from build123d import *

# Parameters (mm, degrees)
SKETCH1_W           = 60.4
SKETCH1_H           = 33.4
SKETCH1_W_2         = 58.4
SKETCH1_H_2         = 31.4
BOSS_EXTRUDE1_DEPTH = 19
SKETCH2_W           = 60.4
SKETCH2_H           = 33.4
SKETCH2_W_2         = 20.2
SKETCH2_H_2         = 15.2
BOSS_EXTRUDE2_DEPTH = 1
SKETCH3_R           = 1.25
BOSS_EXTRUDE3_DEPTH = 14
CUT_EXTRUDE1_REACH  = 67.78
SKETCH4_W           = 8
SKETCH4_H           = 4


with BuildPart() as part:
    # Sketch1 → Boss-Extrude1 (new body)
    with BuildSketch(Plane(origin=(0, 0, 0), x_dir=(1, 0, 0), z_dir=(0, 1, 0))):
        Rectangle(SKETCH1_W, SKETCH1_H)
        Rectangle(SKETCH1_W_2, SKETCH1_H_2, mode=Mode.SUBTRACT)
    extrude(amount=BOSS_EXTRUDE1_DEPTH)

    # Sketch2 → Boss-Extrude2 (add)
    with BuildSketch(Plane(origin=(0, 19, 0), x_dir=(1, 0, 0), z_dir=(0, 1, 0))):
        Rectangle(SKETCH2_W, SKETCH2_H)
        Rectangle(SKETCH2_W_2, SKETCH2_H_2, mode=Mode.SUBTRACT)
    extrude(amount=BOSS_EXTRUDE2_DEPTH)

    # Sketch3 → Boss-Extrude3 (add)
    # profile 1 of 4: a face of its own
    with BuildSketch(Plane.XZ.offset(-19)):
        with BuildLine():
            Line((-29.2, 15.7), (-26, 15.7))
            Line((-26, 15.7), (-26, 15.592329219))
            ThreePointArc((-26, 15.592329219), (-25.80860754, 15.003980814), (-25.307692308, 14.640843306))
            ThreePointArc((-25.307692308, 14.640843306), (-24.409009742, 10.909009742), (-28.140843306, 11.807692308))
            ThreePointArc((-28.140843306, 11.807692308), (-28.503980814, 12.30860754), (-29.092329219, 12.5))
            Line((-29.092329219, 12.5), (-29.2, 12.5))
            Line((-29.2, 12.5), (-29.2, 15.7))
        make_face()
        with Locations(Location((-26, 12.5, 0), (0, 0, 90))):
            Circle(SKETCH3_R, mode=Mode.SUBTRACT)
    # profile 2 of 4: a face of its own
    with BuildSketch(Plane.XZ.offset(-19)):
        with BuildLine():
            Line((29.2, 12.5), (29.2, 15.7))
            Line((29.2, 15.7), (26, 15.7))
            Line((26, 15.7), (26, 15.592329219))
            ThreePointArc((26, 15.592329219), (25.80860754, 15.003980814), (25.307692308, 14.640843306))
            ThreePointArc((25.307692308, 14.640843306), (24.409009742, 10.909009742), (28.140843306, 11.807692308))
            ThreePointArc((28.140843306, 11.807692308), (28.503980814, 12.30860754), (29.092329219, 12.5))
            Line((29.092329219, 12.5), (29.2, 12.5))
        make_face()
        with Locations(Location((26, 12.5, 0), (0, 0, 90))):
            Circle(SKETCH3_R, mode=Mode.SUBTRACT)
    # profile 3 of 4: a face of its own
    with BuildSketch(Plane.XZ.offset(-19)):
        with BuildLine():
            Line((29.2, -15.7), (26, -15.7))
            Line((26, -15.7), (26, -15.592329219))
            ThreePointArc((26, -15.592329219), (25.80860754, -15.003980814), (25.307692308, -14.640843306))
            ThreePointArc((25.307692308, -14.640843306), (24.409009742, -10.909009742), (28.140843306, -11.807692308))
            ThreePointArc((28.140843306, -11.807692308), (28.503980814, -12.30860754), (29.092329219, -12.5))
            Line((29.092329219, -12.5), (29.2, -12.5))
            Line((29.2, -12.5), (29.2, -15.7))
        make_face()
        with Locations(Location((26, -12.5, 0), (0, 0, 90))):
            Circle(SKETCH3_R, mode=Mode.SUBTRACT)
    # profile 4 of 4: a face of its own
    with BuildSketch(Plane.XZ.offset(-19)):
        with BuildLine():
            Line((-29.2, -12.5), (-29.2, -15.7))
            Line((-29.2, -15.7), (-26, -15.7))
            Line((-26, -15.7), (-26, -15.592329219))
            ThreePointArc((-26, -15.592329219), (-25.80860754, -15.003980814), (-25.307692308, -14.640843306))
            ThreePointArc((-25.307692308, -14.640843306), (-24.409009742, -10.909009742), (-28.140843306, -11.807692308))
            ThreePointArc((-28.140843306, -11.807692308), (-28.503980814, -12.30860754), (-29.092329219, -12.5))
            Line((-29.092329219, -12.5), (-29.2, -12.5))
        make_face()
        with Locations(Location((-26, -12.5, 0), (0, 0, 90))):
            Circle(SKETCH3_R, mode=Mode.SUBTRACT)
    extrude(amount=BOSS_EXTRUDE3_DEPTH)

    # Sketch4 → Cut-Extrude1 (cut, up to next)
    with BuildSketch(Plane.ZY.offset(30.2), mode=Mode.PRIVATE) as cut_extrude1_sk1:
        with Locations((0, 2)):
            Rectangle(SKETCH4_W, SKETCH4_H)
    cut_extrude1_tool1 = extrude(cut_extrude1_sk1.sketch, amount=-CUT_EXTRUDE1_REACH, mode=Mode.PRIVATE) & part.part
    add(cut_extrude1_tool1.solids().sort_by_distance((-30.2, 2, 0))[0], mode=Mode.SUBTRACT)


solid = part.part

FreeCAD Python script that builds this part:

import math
import FreeCAD as App
import Part
import Sketcher

V = App.Vector

doc = App.newDocument("Part")
body = doc.addObject("PartDesign::Body", "Body")

sketch1 = body.newObject("Sketcher::SketchObject", "Sketch")
sketch1.AttachmentSupport = (doc.getObject("XZ_Plane"), [""])
sketch1.MapMode = "FlatFace"
sketch1.addGeometry([
    Part.LineSegment(V(-30, -17, 0), V(-30, 17, 0)),
    Part.LineSegment(V(-30, 17, 0), V(30, 17, 0)),
    Part.LineSegment(V(30, 17, 0), V(30, -17, 0)),
    Part.LineSegment(V(30, -17, 0), V(-30, -17, 0)),
    Part.LineSegment(V(29, 16, 0), V(-29, 16, 0)),
    Part.LineSegment(V(-29, 16, 0), V(-29, -16, 0)),
    Part.LineSegment(V(-29, -16, 0), V(29, -16, 0)),
    Part.LineSegment(V(29, -16, 0), V(29, 16, 0)),
], False)
sketch1.addConstraint([
    Sketcher.Constraint("Coincident", 0, 2, 1, 1),
    Sketcher.Constraint("Coincident", 1, 2, 2, 1),
    Sketcher.Constraint("Coincident", 2, 2, 3, 1),
    Sketcher.Constraint("Coincident", 3, 2, 0, 1),
    Sketcher.Constraint("Coincident", 4, 2, 5, 1),
    Sketcher.Constraint("Coincident", 5, 2, 6, 1),
    Sketcher.Constraint("Coincident", 6, 2, 7, 1),
    Sketcher.Constraint("Coincident", 7, 2, 4, 1),
    Sketcher.Constraint("Vertical", 0),
    Sketcher.Constraint("Horizontal", 1),
    Sketcher.Constraint("Vertical", 2),
    Sketcher.Constraint("Horizontal", 3),
    Sketcher.Constraint("Horizontal", 4),
    Sketcher.Constraint("Vertical", 5),
    Sketcher.Constraint("Horizontal", 6),
    Sketcher.Constraint("Vertical", 7),
    Sketcher.Constraint("Symmetric", 0, 2, 2, 2, -1, 1),
    Sketcher.Constraint("Symmetric", 4, 2, 6, 2, -1, 1),
    Sketcher.Constraint("DistanceX", 1, 1, 1, 2, 60.4),
    Sketcher.Constraint("DistanceX", 4, 2, 4, 1, 58.4),
    Sketcher.Constraint("DistanceY", 0, 1, 0, 2, 33.4),
    Sketcher.Constraint("DistanceY", 5, 2, 5, 1, 31.4),
])
pad1 = body.newObject("PartDesign::Pad", "Pad")
pad1.Profile = sketch1
pad1.Length = 19
pad1.Reversed = True

sketch2 = body.newObject("Sketcher::SketchObject", "Sketch001")
sketch2.AttachmentSupport = (doc.getObject("XZ_Plane"), [""])
sketch2.MapMode = "FlatFace"
sketch2.AttachmentOffset = App.Placement(V(0, 0, -19), App.Rotation())
sketch2.addGeometry([
    Part.LineSegment(V(-30, -17, 0), V(-30, 17, 0)),
    Part.LineSegment(V(-30, 17, 0), V(30, 17, 0)),
    Part.LineSegment(V(30, 17, 0), V(30, -17, 0)),
    Part.LineSegment(V(30, -17, 0), V(-30, -17, 0)),
    Part.LineSegment(V(10, 8, 0), V(-10, 8, 0)),
    Part.LineSegment(V(-10, 8, 0), V(-10, -8, 0)),
    Part.LineSegment(V(-10, -8, 0), V(10, -8, 0)),
    Part.LineSegment(V(10, -8, 0), V(10, 8, 0)),
], False)
sketch2.addConstraint([
    Sketcher.Constraint("Coincident", 0, 2, 1, 1),
    Sketcher.Constraint("Coincident", 1, 2, 2, 1),
    Sketcher.Constraint("Coincident", 2, 2, 3, 1),
    Sketcher.Constraint("Coincident", 3, 2, 0, 1),
    Sketcher.Constraint("Coincident", 4, 2, 5, 1),
    Sketcher.Constraint("Coincident", 5, 2, 6, 1),
    Sketcher.Constraint("Coincident", 6, 2, 7, 1),
    Sketcher.Constraint("Coincident", 7, 2, 4, 1),
    Sketcher.Constraint("Vertical", 0),
    Sketcher.Constraint("Horizontal", 1),
    Sketcher.Constraint("Vertical", 2),
    Sketcher.Constraint("Horizontal", 3),
    Sketcher.Constraint("Horizontal", 4),
    Sketcher.Constraint("Vertical", 5),
    Sketcher.Constraint("Horizontal", 6),
    Sketcher.Constraint("Vertical", 7),
    Sketcher.Constraint("Symmetric", 0, 2, 2, 2, -1, 1),
    Sketcher.Constraint("Symmetric", 4, 2, 6, 2, -1, 1),
    Sketcher.Constraint("DistanceX", 1, 1, 1, 2, 60.4),
    Sketcher.Constraint("DistanceX", 4, 2, 4, 1, 20.2),
    Sketcher.Constraint("DistanceY", 0, 1, 0, 2, 33.4),
    Sketcher.Constraint("DistanceY", 5, 2, 5, 1, 15.2),
])
pad2 = body.newObject("PartDesign::Pad", "Pad001")
pad2.Profile = sketch2
pad2.Length = 1
pad2.Reversed = True

sketch3 = body.newObject("Sketcher::SketchObject", "Sketch002")
sketch3.AttachmentSupport = (doc.getObject("XZ_Plane"), [""])
sketch3.MapMode = "FlatFace"
sketch3.AttachmentOffset = App.Placement(V(0, 0, -19), App.Rotation())
sketch3.addGeometry([
    Part.LineSegment(V(-26, 15.7, 0), V(-29.2, 15.7, 0)),
    Part.LineSegment(V(-29.2, 15.7, 0), V(-29.2, 12.5, 0)),
    Part.LineSegment(V(-29.2, 12.5, 0), V(-29.09, 12.5, 0)),
    Part.ArcOfCircle(Part.Circle(V(-29.09, 11.5, 0), V(0, 0, 1), 1), math.radians(18), math.radians(90)),
    Part.ArcOfCircle(Part.Circle(V(-26, 12.5, 0), V(0, 0, 1), 2.25), math.radians(-162), math.radians(72)),
    Part.ArcOfCircle(Part.Circle(V(-25, 15.59, 0), V(0, 0, 1), 1), math.radians(180), math.radians(252)),
    Part.LineSegment(V(-26, 15.59, 0), V(-26, 15.7, 0)),
    Part.Circle(V(-26, 12.5, 0), V(0, 0, 1), 1.25),
    Part.LineSegment(V(29.2, 12.5, 0), V(29.2, 15.7, 0)),
    Part.LineSegment(V(29.2, 15.7, 0), V(26, 15.7, 0)),
    Part.LineSegment(V(26, 15.7, 0), V(26, 15.59, 0)),
    Part.ArcOfCircle(Part.Circle(V(25, 15.59, 0), V(0, 0, 1), 1), math.radians(-72), math.radians(0)),
    Part.ArcOfCircle(Part.Circle(V(26, 12.5, 0), V(0, 0, 1), 2.25), math.radians(108), math.radians(342)),
    Part.ArcOfCircle(Part.Circle(V(29.09, 11.5, 0), V(0, 0, 1), 1), math.radians(90), math.radians(162)),
    Part.LineSegment(V(29.09, 12.5, 0), V(29.2, 12.5, 0)),
    Part.Circle(V(26, 12.5, 0), V(0, 0, 1), 1.25),
    Part.LineSegment(V(26, -15.7, 0), V(29.2, -15.7, 0)),
    Part.LineSegment(V(29.2, -15.7, 0), V(29.2, -12.5, 0)),
    Part.LineSegment(V(29.2, -12.5, 0), V(29.09, -12.5, 0)),
    Part.ArcOfCircle(Part.Circle(V(29.09, -11.5, 0), V(0, 0, 1), 1), math.radians(-162), math.radians(-90)),
    Part.ArcOfCircle(Part.Circle(V(26, -12.5, 0), V(0, 0, 1), 2.25), math.radians(18), math.radians(252)),
    Part.ArcOfCircle(Part.Circle(V(25, -15.59, 0), V(0, 0, 1), 1), math.radians(0), math.radians(72)),
    Part.LineSegment(V(26, -15.59, 0), V(26, -15.7, 0)),
    Part.Circle(V(26, -12.5, 0), V(0, 0, 1), 1.25),
    Part.LineSegment(V(-29.2, -12.5, 0), V(-29.2, -15.7, 0)),
    Part.LineSegment(V(-29.2, -15.7, 0), V(-26, -15.7, 0)),
    Part.LineSegment(V(-26, -15.7, 0), V(-26, -15.59, 0)),
    Part.ArcOfCircle(Part.Circle(V(-25, -15.59, 0), V(0, 0, 1), 1), math.radians(108), math.radians(180)),
    Part.ArcOfCircle(Part.Circle(V(-26, -12.5, 0), V(0, 0, 1), 2.25), math.radians(-72), math.radians(162)),
    Part.ArcOfCircle(Part.Circle(V(-29.09, -11.5, 0), V(0, 0, 1), 1), math.radians(-90), math.radians(-18)),
    Part.LineSegment(V(-29.09, -12.5, 0), V(-29.2, -12.5, 0)),
    Part.Circle(V(-26, -12.5, 0), V(0, 0, 1), 1.25),
], False)
sketch3.addConstraint([
    Sketcher.Constraint("Coincident", 0, 2, 1, 1),
    Sketcher.Constraint("Coincident", 1, 2, 2, 1),
    Sketcher.Constraint("Tangent", 2, 2, 3, 2),
    Sketcher.Constraint("Tangent", 3, 1, 4, 1),
    Sketcher.Constraint("Tangent", 4, 2, 5, 2),
    Sketcher.Constraint("Tangent", 5, 1, 6, 1),
    Sketcher.Constraint("Coincident", 6, 2, 0, 1),
    Sketcher.Constraint("Coincident", 8, 2, 9, 1),
    Sketcher.Constraint("Coincident", 9, 2, 10, 1),
    Sketcher.Constraint("Tangent", 10, 2, 11, 2),
    Sketcher.Constraint("Tangent", 11, 1, 12, 1),
    Sketcher.Constraint("Tangent", 12, 2, 13, 2),
    Sketcher.Constraint("Tangent", 13, 1, 14, 1),
    Sketcher.Constraint("Coincident", 14, 2, 8, 1),
    Sketcher.Constraint("Coincident", 16, 2, 17, 1),
    Sketcher.Constraint("Coincident", 17, 2, 18, 1),
    Sketcher.Constraint("Tangent", 18, 2, 19, 2),
    Sketcher.Constraint("Tangent", 19, 1, 20, 1),
    Sketcher.Constraint("Tangent", 20, 2, 21, 2),
    Sketcher.Constraint("Tangent", 21, 1, 22, 1),
    Sketcher.Constraint("Coincident", 22, 2, 16, 1),
    Sketcher.Constraint("Coincident", 24, 2, 25, 1),
    Sketcher.Constraint("Coincident", 25, 2, 26, 1),
    Sketcher.Constraint("Tangent", 26, 2, 27, 2),
    Sketcher.Constraint("Tangent", 27, 1, 28, 1),
    Sketcher.Constraint("Tangent", 28, 2, 29, 2),
    Sketcher.Constraint("Tangent", 29, 1, 30, 1),
    Sketcher.Constraint("Coincident", 30, 2, 24, 1),
    Sketcher.Constraint("Horizontal", 0),
    Sketcher.Constraint("Vertical", 1),
    Sketcher.Constraint("Horizontal", 2),
    Sketcher.Constraint("Vertical", 6),
    Sketcher.Constraint("Vertical", 8),
    Sketcher.Constraint("Horizontal", 9),
    Sketcher.Constraint("Vertical", 10),
    Sketcher.Constraint("Horizontal", 14),
    Sketcher.Constraint("Horizontal", 16),
    Sketcher.Constraint("Vertical", 17),
    Sketcher.Constraint("Horizontal", 18),
    Sketcher.Constraint("Vertical", 22),
    Sketcher.Constraint("Vertical", 24),
    Sketcher.Constraint("Horizontal", 25),
    Sketcher.Constraint("Vertical", 26),
    Sketcher.Constraint("Horizontal", 30),
    Sketcher.Constraint("Coincident", 7, 3, 4, 3),
    Sketcher.Constraint("Coincident", 15, 3, 12, 3),
    Sketcher.Constraint("Coincident", 23, 3, 20, 3),
    Sketcher.Constraint("Coincident", 31, 3, 28, 3),
    Sketcher.Constraint("Equal", 3, 5),
    Sketcher.Constraint("Equal", 5, 11),
    Sketcher.Constraint("Equal", 4, 12),
    Sketcher.Constraint("Equal", 11, 13),
    Sketcher.Constraint("Equal", 7, 15),
    Sketcher.Constraint("Equal", 13, 19),
    Sketcher.Constraint("Equal", 12, 20),
    Sketcher.Constraint("Equal", 19, 21),
    Sketcher.Constraint("Equal", 15, 23),
    Sketcher.Constraint("Equal", 21, 27),
    Sketcher.Constraint("Equal", 20, 28),
    Sketcher.Constraint("Equal", 27, 29),
    Sketcher.Constraint("Equal", 23, 31),
    Sketcher.Constraint("Symmetric", 3, 3, 19, 3, -1, 1),
    Sketcher.Constraint("Symmetric", 5, 3, 21, 3, -1, 1),
    Sketcher.Constraint("Symmetric", 11, 3, 27, 3, -1, 1),
    Sketcher.Constraint("Symmetric", 13, 3, 29, 3, -1, 1),
    Sketcher.Constraint("Symmetric", 0, 2, 16, 2, -1, 1),
    Sketcher.Constraint("Symmetric", 8, 2, 24, 2, -1, 1),
    Sketcher.Constraint("Symmetric", 5, 3, 11, 3, -2),
    Sketcher.Constraint("Symmetric", 3, 3, 13, 3, -2),
    Sketcher.Constraint("Symmetric", 0, 2, 8, 2, -2),
    Sketcher.Constraint("Horizontal", 15, 3, 1, 2),
    Sketcher.Constraint("Vertical", 31, 3, 5, 1),
    Sketcher.Constraint("Equal", 25, 1),
    Sketcher.Constraint("Radius", 3, 1.0),
    Sketcher.Constraint("Diameter", 7, 2.5),
    Sketcher.Constraint("Radius", 4, 2.25),
    Sketcher.Constraint("DistanceX", 0, 2, 0, 1, 3.2),
    Sketcher.Constraint("DistanceX", 4, 3, -1, 1, 26.0),
    Sketcher.Constraint("DistanceY", 19, 3, 13, 3, 23.0),
])
pad3 = body.newObject("PartDesign::Pad", "Pad002")
pad3.Profile = sketch3
pad3.Length = 14

sketch4 = body.newObject("Sketcher::SketchObject", "Sketch003")
sketch4.AttachmentSupport = (doc.getObject("YZ_Plane"), [""])
sketch4.MapMode = "FlatFace"
sketch4.AttachmentOffset = App.Placement(V(0, 0, -30.2), App.Rotation())
sketch4.addGeometry([
    Part.LineSegment(V(4, -4, 0), V(0, -4, 0)),
    Part.LineSegment(V(0, -4, 0), V(0, 4, 0)),
    Part.LineSegment(V(0, 4, 0), V(4, 4, 0)),
    Part.LineSegment(V(4, 4, 0), V(4, -4, 0)),
], False)
sketch4.addConstraint([
    Sketcher.Constraint("Coincident", 0, 2, 1, 1),
    Sketcher.Constraint("Coincident", 1, 2, 2, 1),
    Sketcher.Constraint("Coincident", 2, 2, 3, 1),
    Sketcher.Constraint("Coincident", 3, 2, 0, 1),
    Sketcher.Constraint("Horizontal", 0),
    Sketcher.Constraint("Vertical", 1),
    Sketcher.Constraint("Horizontal", 2),
    Sketcher.Constraint("Vertical", 3),
    Sketcher.Constraint("Symmetric", 0, 2, 1, 2, -1, 1),
    Sketcher.Constraint("DistanceX", 0, 2, 0, 1, 4.0),
    Sketcher.Constraint("DistanceY", 1, 1, 1, 2, 8.0),
])
pocket1 = body.newObject("PartDesign::Pocket", "Pocket")
pocket1.Profile = sketch4
pocket1.Type = "UpToFirst"
pocket1.Reversed = True

doc.recompute()
